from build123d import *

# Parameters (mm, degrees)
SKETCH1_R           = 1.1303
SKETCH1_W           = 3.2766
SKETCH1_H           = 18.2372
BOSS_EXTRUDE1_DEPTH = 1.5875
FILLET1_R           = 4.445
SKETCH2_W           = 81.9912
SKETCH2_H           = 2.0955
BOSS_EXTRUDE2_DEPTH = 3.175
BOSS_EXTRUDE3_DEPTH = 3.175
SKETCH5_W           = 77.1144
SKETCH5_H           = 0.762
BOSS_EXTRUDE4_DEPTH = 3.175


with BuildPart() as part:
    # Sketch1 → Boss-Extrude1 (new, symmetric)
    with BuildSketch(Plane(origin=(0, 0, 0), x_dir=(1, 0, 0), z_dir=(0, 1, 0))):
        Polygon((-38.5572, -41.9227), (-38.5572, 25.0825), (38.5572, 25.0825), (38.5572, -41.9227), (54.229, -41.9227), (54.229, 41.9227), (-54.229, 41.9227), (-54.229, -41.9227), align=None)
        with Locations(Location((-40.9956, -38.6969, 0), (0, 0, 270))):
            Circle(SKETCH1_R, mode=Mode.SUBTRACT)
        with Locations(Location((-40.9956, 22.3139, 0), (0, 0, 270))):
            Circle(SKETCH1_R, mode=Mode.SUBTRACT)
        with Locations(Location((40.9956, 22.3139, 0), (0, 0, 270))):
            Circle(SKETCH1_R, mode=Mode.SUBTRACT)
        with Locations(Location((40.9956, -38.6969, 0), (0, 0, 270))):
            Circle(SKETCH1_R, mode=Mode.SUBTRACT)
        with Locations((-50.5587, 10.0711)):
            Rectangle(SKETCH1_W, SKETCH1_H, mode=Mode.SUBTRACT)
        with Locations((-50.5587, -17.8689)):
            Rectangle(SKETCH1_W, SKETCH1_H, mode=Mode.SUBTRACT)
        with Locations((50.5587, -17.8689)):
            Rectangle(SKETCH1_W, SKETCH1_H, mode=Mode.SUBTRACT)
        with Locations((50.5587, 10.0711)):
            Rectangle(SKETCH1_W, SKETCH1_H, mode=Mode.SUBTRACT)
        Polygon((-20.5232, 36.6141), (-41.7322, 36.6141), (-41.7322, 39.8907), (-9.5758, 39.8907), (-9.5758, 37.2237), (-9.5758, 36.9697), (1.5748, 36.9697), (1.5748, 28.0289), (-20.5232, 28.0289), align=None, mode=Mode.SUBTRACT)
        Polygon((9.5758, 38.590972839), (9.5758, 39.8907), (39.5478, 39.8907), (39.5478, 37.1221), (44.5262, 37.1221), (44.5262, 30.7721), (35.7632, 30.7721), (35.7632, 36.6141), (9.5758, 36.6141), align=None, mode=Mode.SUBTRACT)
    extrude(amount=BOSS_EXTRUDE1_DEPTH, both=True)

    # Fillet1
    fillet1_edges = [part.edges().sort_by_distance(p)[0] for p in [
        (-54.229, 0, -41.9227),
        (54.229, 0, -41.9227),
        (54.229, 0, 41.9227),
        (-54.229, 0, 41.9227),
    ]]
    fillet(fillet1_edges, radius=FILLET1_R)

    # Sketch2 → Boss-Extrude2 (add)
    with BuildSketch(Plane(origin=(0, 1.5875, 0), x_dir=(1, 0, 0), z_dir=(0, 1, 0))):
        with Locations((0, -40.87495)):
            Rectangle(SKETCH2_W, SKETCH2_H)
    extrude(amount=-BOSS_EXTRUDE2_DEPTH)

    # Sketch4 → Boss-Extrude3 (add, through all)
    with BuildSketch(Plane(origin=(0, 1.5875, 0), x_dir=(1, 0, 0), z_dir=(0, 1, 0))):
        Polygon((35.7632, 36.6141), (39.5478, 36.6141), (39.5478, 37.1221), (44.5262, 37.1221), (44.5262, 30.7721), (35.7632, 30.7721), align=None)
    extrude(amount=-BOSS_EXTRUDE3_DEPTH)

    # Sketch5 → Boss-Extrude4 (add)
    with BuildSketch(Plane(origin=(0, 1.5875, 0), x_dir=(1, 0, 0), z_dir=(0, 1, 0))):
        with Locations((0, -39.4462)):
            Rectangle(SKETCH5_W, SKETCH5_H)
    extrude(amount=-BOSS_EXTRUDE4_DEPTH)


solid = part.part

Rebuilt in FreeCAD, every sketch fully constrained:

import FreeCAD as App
import Part
import Sketcher
from FreeCAD import Vector
Q = App.Units.Quantity


def edges_at(feature, points):
    """Names of the edges that pass closest to the given points."""
    edges = feature.Shape.Edges
    near = lambda p: min(range(len(edges)), key=lambda i: edges[i].distToShape(Part.Vertex(*p))[0])
    return sorted({f"Edge{near(p) + 1}" for p in points})

doc = App.newDocument("Part")
body = doc.addObject("PartDesign::Body", "Body")

# Sketch on XZ plane
sketch1 = body.newObject("Sketcher::SketchObject", "Sketch")
sketch1.AttachmentSupport = (doc.getObject("XZ_Plane"), [""])
sketch1.MapMode = "FlatFace"
sketch1.addGeometry(Part.LineSegment(Vector(-38.5572, 41.9227, 0), Vector(-38.5572, -25.0825, 0)), False)
sketch1.addGeometry(Part.LineSegment(Vector(-38.5572, -25.0825, 0), Vector(38.5572, -25.0825, 0)), False)
sketch1.addGeometry(Part.LineSegment(Vector(38.5572, -25.0825, 0), Vector(38.5572, 41.9227, 0)), False)
sketch1.addGeometry(Part.LineSegment(Vector(38.5572, 41.9227, 0), Vector(54.229, 41.9227, 0)), False)
sketch1.addGeometry(Part.LineSegment(Vector(54.229, 41.9227, 0), Vector(54.229, -41.9227, 0)), False)
sketch1.addGeometry(Part.LineSegment(Vector(54.229, -41.9227, 0), Vector(-54.229, -41.9227, 0)), False)
sketch1.addGeometry(Part.LineSegment(Vector(-54.229, -41.9227, 0), Vector(-54.229, 41.9227, 0)), False)
sketch1.addGeometry(Part.LineSegment(Vector(-54.229, 41.9227, 0), Vector(-38.5572, 41.9227, 0)), False)
sketch1.addGeometry(Part.Circle(Vector(-40.9956, 38.6969, 0), Vector(0, 0, 1), 1.1303), False)
sketch1.addGeometry(Part.LineSegment(Vector(-48.9204, 26.9875, 0), Vector(-52.197, 26.9875, 0)), False)
sketch1.addGeometry(Part.LineSegment(Vector(-52.197, 26.9875, 0), Vector(-52.197, 8.7503, 0)), False)
sketch1.addGeometry(Part.LineSegment(Vector(-52.197, 8.7503, 0), Vector(-48.9204, 8.7503, 0)), False)
sketch1.addGeometry(Part.LineSegment(Vector(-48.9204, 8.7503, 0), Vector(-48.9204, 26.9875, 0)), False)
sketch1.addGeometry(Part.Circle(Vector(40.9956, 38.6969, 0), Vector(0, 0, 1), 1.1303), False)
sketch1.addGeometry(Part.LineSegment(Vector(52.197, 26.9875, 0), Vector(48.9204, 26.9875, 0)), False)
sketch1.addGeometry(Part.LineSegment(Vector(48.9204, 26.9875, 0), Vector(48.9204, 8.7503, 0)), False)
sketch1.addGeometry(Part.LineSegment(Vector(48.9204, 8.7503, 0), Vector(52.197, 8.7503, 0)), False)
sketch1.addGeometry(Part.LineSegment(Vector(52.197, 8.7503, 0), Vector(52.197, 26.9875, 0)), False)
sketch1.addGeometry(Part.LineSegment(Vector(-48.9204, -0.9525, 0), Vector(-52.197, -0.9525, 0)), False)
sketch1.addGeometry(Part.LineSegment(Vector(-52.197, -0.9525, 0), Vector(-52.197, -19.1897, 0)), False)
sketch1.addGeometry(Part.LineSegment(Vector(-52.197, -19.1897, 0), Vector(-48.9204, -19.1897, 0)), False)
sketch1.addGeometry(Part.LineSegment(Vector(-48.9204, -19.1897, 0), Vector(-48.9204, -0.9525, 0)), False)
sketch1.addGeometry(Part.Circle(Vector(-40.9956, -22.3139, 0), Vector(0, 0, 1), 1.1303), False)
sketch1.addGeometry(Part.LineSegment(Vector(-20.5232, -28.0289, 0), Vector(-20.5232, -36.6141, 0)), False)
sketch1.addGeometry(Part.LineSegment(Vector(-20.5232, -36.6141, 0), Vector(-41.7322, -36.6141, 0)), False)
sketch1.addGeometry(Part.LineSegment(Vector(-41.7322, -36.6141, 0), Vector(-41.7322, -39.8907, 0)), False)
sketch1.addGeometry(Part.LineSegment(Vector(-41.7322, -39.8907, 0), Vector(-9.5758, -39.8907, 0)), False)
sketch1.addGeometry(Part.LineSegment(Vector(-9.5758, -39.8907, 0), Vector(-9.5758, -36.9697, 0)), False)
sketch1.addGeometry(Part.LineSegment(Vector(-9.5758, -36.9697, 0), Vector(1.5748, -36.9697, 0)), False)
sketch1.addGeometry(Part.LineSegment(Vector(1.5748, -36.9697, 0), Vector(1.5748, -28.0289, 0)), False)
sketch1.addGeometry(Part.LineSegment(Vector(1.5748, -28.0289, 0), Vector(-20.5232, -28.0289, 0)), False)
sketch1.addGeometry(Part.LineSegment(Vector(52.197, -0.9525, 0), Vector(48.9204, -0.9525, 0)), False)
sketch1.addGeometry(Part.LineSegment(Vector(48.9204, -0.9525, 0), Vector(48.9204, -19.1897, 0)), False)
sketch1.addGeometry(Part.LineSegment(Vector(48.9204, -19.1897, 0), Vector(52.197, -19.1897, 0)), False)
sketch1.addGeometry(Part.LineSegment(Vector(52.197, -19.1897, 0), Vector(52.197, -0.9525, 0)), False)
sketch1.addGeometry(Part.Circle(Vector(40.9956, -22.3139, 0), Vector(0, 0, 1), 1.1303), False)
sketch1.addGeometry(Part.LineSegment(Vector(9.5758, -36.6141, 0), Vector(9.5758, -39.8907, 0)), False)
sketch1.addGeometry(Part.LineSegment(Vector(9.5758, -39.8907, 0), Vector(39.5478, -39.8907, 0)), False)
sketch1.addGeometry(Part.LineSegment(Vector(39.5478, -39.8907, 0), Vector(39.5478, -37.1221, 0)), False)
sketch1.addGeometry(Part.LineSegment(Vector(39.5478, -37.1221, 0), Vector(44.5262, -37.1221, 0)), False)
sketch1.addGeometry(Part.LineSegment(Vector(44.5262, -37.1221, 0), Vector(44.5262, -30.7721, 0)), False)
sketch1.addGeometry(Part.LineSegment(Vector(44.5262, -30.7721, 0), Vector(35.7632, -30.7721, 0)), False)
sketch1.addGeometry(Part.LineSegment(Vector(35.7632, -30.7721, 0), Vector(35.7632, -36.6141, 0)), False)
sketch1.addGeometry(Part.LineSegment(Vector(35.7632, -36.6141, 0), Vector(9.5758, -36.6141, 0)), False)
sketch1.addConstraint(Sketcher.Constraint("Coincident", 0, 2, 1, 1))
sketch1.addConstraint(Sketcher.Constraint("Coincident", 1, 2, 2, 1))
sketch1.addConstraint(Sketcher.Constraint("Coincident", 2, 2, 3, 1))
sketch1.addConstraint(Sketcher.Constraint("Coincident", 3, 2, 4, 1))
sketch1.addConstraint(Sketcher.Constraint("Coincident", 4, 2, 5, 1))
sketch1.addConstraint(Sketcher.Constraint("Coincident", 5, 2, 6, 1))
sketch1.addConstraint(Sketcher.Constraint("Coincident", 6, 2, 7, 1))
sketch1.addConstraint(Sketcher.Constraint("Coincident", 7, 2, 0, 1))
sketch1.addConstraint(Sketcher.Constraint("Coincident", 9, 2, 10, 1))
sketch1.addConstraint(Sketcher.Constraint("Coincident", 10, 2, 11, 1))
sketch1.addConstraint(Sketcher.Constraint("Coincident", 11, 2, 12, 1))
sketch1.addConstraint(Sketcher.Constraint("Coincident", 12, 2, 9, 1))
sketch1.addConstraint(Sketcher.Constraint("Coincident", 14, 2, 15, 1))
sketch1.addConstraint(Sketcher.Constraint("Coincident", 15, 2, 16, 1))
sketch1.addConstraint(Sketcher.Constraint("Coincident", 16, 2, 17, 1))
sketch1.addConstraint(Sketcher.Constraint("Coincident", 17, 2, 14, 1))
sketch1.addConstraint(Sketcher.Constraint("Coincident", 18, 2, 19, 1))
sketch1.addConstraint(Sketcher.Constraint("Coincident", 19, 2, 20, 1))
sketch1.addConstraint(Sketcher.Constraint("Coincident", 20, 2, 21, 1))
sketch1.addConstraint(Sketcher.Constraint("Coincident", 21, 2, 18, 1))
sketch1.addConstraint(Sketcher.Constraint("Coincident", 23, 2, 24, 1))
sketch1.addConstraint(Sketcher.Constraint("Coincident", 24, 2, 25, 1))
sketch1.addConstraint(Sketcher.Constraint("Coincident", 25, 2, 26, 1))
sketch1.addConstraint(Sketcher.Constraint("Coincident", 26, 2, 27, 1))
sketch1.addConstraint(Sketcher.Constraint("Coincident", 27, 2, 28, 1))
sketch1.addConstraint(Sketcher.Constraint("Coincident", 28, 2, 29, 1))
sketch1.addConstraint(Sketcher.Constraint("Coincident", 29, 2, 30, 1))
sketch1.addConstraint(Sketcher.Constraint("Coincident", 30, 2, 23, 1))
sketch1.addConstraint(Sketcher.Constraint("Coincident", 31, 2, 32, 1))
sketch1.addConstraint(Sketcher.Constraint("Coincident", 32, 2, 33, 1))
sketch1.addConstraint(Sketcher.Constraint("Coincident", 33, 2, 34, 1))
sketch1.addConstraint(Sketcher.Constraint("Coincident", 34, 2, 31, 1))
sketch1.addConstraint(Sketcher.Constraint("Coincident", 36, 2, 37, 1))
sketch1.addConstraint(Sketcher.Constraint("Coincident", 37, 2, 38, 1))
sketch1.addConstraint(Sketcher.Constraint("Coincident", 38, 2, 39, 1))
sketch1.addConstraint(Sketcher.Constraint("Coincident", 39, 2, 40, 1))
sketch1.addConstraint(Sketcher.Constraint("Coincident", 40, 2, 41, 1))
sketch1.addConstraint(Sketcher.Constraint("Coincident", 41, 2, 42, 1))
sketch1.addConstraint(Sketcher.Constraint("Coincident", 42, 2, 43, 1))
sketch1.addConstraint(Sketcher.Constraint("Coincident", 43, 2, 36, 1))
sketch1.addConstraint(Sketcher.Constraint("Vertical", 0))
sketch1.addConstraint(Sketcher.Constraint("Horizontal", 1))
sketch1.addConstraint(Sketcher.Constraint("Vertical", 2))
sketch1.addConstraint(Sketcher.Constraint("Horizontal", 3))
sketch1.addConstraint(Sketcher.Constraint("Vertical", 4))
sketch1.addConstraint(Sketcher.Constraint("Horizontal", 5))
sketch1.addConstraint(Sketcher.Constraint("Vertical", 6))
sketch1.addConstraint(Sketcher.Constraint("Horizontal", 7))
sketch1.addConstraint(Sketcher.Constraint("Horizontal", 9))
sketch1.addConstraint(Sketcher.Constraint("Vertical", 10))
sketch1.addConstraint(Sketcher.Constraint("Horizontal", 11))
sketch1.addConstraint(Sketcher.Constraint("Vertical", 12))
sketch1.addConstraint(Sketcher.Constraint("Horizontal", 14))
sketch1.addConstraint(Sketcher.Constraint("Vertical", 15))
sketch1.addConstraint(Sketcher.Constraint("Horizontal", 16))
sketch1.addConstraint(Sketcher.Constraint("Vertical", 17))
sketch1.addConstraint(Sketcher.Constraint("Horizontal", 18))
sketch1.addConstraint(Sketcher.Constraint("Vertical", 19))
sketch1.addConstraint(Sketcher.Constraint("Horizontal", 20))
sketch1.addConstraint(Sketcher.Constraint("Vertical", 21))
sketch1.addConstraint(Sketcher.Constraint("Vertical", 23))
sketch1.addConstraint(Sketcher.Constraint("Horizontal", 24))
sketch1.addConstraint(Sketcher.Constraint("Vertical", 25))
sketch1.addConstraint(Sketcher.Constraint("Horizontal", 26))
sketch1.addConstraint(Sketcher.Constraint("Vertical", 27))
sketch1.addConstraint(Sketcher.Constraint("Horizontal", 28))
sketch1.addConstraint(Sketcher.Constraint("Vertical", 29))
sketch1.addConstraint(Sketcher.Constraint("Horizontal", 30))
sketch1.addConstraint(Sketcher.Constraint("Horizontal", 31))
sketch1.addConstraint(Sketcher.Constraint("Vertical", 32))
sketch1.addConstraint(Sketcher.Constraint("Horizontal", 33))
sketch1.addConstraint(Sketcher.Constraint("Vertical", 34))
sketch1.addConstraint(Sketcher.Constraint("Vertical", 36))
sketch1.addConstraint(Sketcher.Constraint("Horizontal", 37))
sketch1.addConstraint(Sketcher.Constraint("Vertical", 38))
sketch1.addConstraint(Sketcher.Constraint("Horizontal", 39))
sketch1.addConstraint(Sketcher.Constraint("Vertical", 40))
sketch1.addConstraint(Sketcher.Constraint("Horizontal", 41))
sketch1.addConstraint(Sketcher.Constraint("Vertical", 42))
sketch1.addConstraint(Sketcher.Constraint("Horizontal", 43))
sketch1.addConstraint(Sketcher.Constraint("Equal", 8, 13))
sketch1.addConstraint(Sketcher.Constraint("Equal", 13, 22))
sketch1.addConstraint(Sketcher.Constraint("Equal", 22, 35))
sketch1.addConstraint(Sketcher.Constraint("Symmetric", 3, 2, 5, 2, -1, 1))
sketch1.addConstraint(Sketcher.Constraint("Symmetric", 8, 3, 13, 3, -2))
sketch1.addConstraint(Sketcher.Constraint("Symmetric", 22, 3, 35, 3, -2))
sketch1.addConstraint(Sketcher.Constraint("Symmetric", 2, 2, 7, 2, -2))
sketch1.addConstraint(Sketcher.Constraint("Symmetric", 12, 2, 14, 2, -2))
sketch1.addConstraint(Sketcher.Constraint("Symmetric", 10, 2, 16, 2, -2))
sketch1.addConstraint(Sketcher.Constraint("Symmetric", 21, 2, 31, 2, -2))
sketch1.addConstraint(Sketcher.Constraint("Symmetric", 19, 2, 33, 2, -2))
sketch1.addConstraint(Sketcher.Constraint("Symmetric", 26, 2, 36, 2, -2))
sketch1.addConstraint(Sketcher.Constraint("Horizontal", 24, 2, 42, 2))
sketch1.addConstraint(Sketcher.Constraint("Vertical", 8, 3, 22, 3))
sketch1.addConstraint(Sketcher.Constraint("Vertical", 10, 2, 18, 2))
sketch1.addConstraint(Sketcher.Constraint("Vertical", 12, 2, 20, 2))
sketch1.addConstraint(Sketcher.Constraint("Equal", 17, 19))
sketch1.addConstraint(Sketcher.Constraint("Equal", 33, 25))
sketch1.addConstraint(Sketcher.Constraint("Diameter", 8, Q("0.089 in")))
sketch1.addConstraint(Sketcher.Constraint("DistanceX", 5, 2, 5, 1, Q("4.27 in")))
sketch1.addConstraint(Sketcher.Constraint("DistanceX", 30, 2, 30, 1, Q("0.87 in")))
sketch1.addConstraint(Sketcher.Constraint("DistanceX", 37, 1, 37, 2, Q("1.18 in")))
sketch1.addConstraint(Sketcher.Constraint("DistanceY", 40, 1, 40, 2, Q("0.25 in")))
sketch1.addConstraint(Sketcher.Constraint("DistanceY", 42, 2, 42, 1, Q("0.23 in")))
sketch1.addConstraint(Sketcher.Constraint("DistanceY", 18, 2, 9, 2, Q("1.1 in")))
sketch1.addConstraint(Sketcher.Constraint("DistanceX", 1, 1, 1, 2, Q("3.036 in")))
sketch1.addConstraint(Sketcher.Constraint("DistanceX", 9, 2, 9, 1, Q("0.129 in")))
sketch1.addConstraint(Sketcher.Constraint("DistanceX", 24, 2, 24, 1, Q("0.835 in")))
sketch1.addConstraint(Sketcher.Constraint("DistanceX", 26, 1, 26, 2, Q("1.266 in")))
sketch1.addConstraint(Sketcher.Constraint("DistanceX", 39, 1, 39, 2, Q("0.196 in")))
sketch1.addConstraint(Sketcher.Constraint("DistanceX", 41, 2, 41, 1, Q("0.345 in")))
sketch1.addConstraint(Sketcher.Constraint("DistanceY", 0, 2, 0, 1, Q("2.638 in")))
sketch1.addConstraint(Sketcher.Constraint("DistanceY", 4, 2, 4, 1, Q("3.301 in")))
sketch1.addConstraint(Sketcher.Constraint("DistanceY", 10, 2, 10, 1, Q("0.718 in")))
sketch1.addConstraint(Sketcher.Constraint("DistanceY", 23, 2, 23, 1, Q("0.338 in")))
sketch1.addConstraint(Sketcher.Constraint("DistanceY", 27, 1, 27, 2, Q("0.115 in")))
sketch1.addConstraint(Sketcher.Constraint("DistanceX", 6, 2, 9, 2, Q("0.08 in")))
sketch1.addConstraint(Sketcher.Constraint("DistanceY", 0, 2, 9, 2, Q("2.05 in")))
sketch1.addConstraint(Sketcher.Constraint("DistanceX", 0, 2, 23, 2, Q("0.71 in")))
sketch1.addConstraint(Sketcher.Constraint("DistanceY", 5, 2, 25, 2, Q("0.08 in")))
sketch1.addConstraint(Sketcher.Constraint("DistanceX", 8, 3, -1, 1, Q("1.614 in")))
sketch1.addConstraint(Sketcher.Constraint("DistanceY", 22, 3, 8, 3, Q("2.402 in")))
sketch1.addConstraint(Sketcher.Constraint("DistanceY", 0, 2, 22, 3, Q("0.109 in")))
pad1 = body.newObject("PartDesign::Pad", "Pad")
pad1.Profile = sketch1
pad1.Length = Q("0.125 in")
pad1.Midplane = True
doc.recompute()

fillet = body.newObject("PartDesign::Fillet", "Fillet")
fillet.Base = (pad1, edges_at(pad1, [
    (-54.229, 0, -41.923),
    (54.229, 0, -41.923),
    (54.229, 0, 41.923),
    (-54.229, 0, 41.923),
]))
fillet.Radius = Q("0.175 in")

# Sketch on XZ plane
sketch2 = body.newObject("Sketcher::SketchObject", "Sketch001")
sketch2.AttachmentSupport = (doc.getObject("XZ_Plane"), [""])
sketch2.MapMode = "FlatFace"
sketch2.AttachmentOffset = App.Placement(Vector(0, 0, -0.0625 * 25.4), App.Rotation())
sketch2.addGeometry(Part.LineSegment(Vector(-40.9956, 39.8272, 0), Vector(-40.9956, 41.9227, 0)), False)
sketch2.addGeometry(Part.LineSegment(Vector(-40.9956, 41.9227, 0), Vector(40.9956, 41.9227, 0)), False)
sketch2.addGeometry(Part.LineSegment(Vector(40.9956, 41.9227, 0), Vector(40.9956, 39.8272, 0)), False)
sketch2.addGeometry(Part.LineSegment(Vector(40.9956, 39.8272, 0), Vector(-40.9956, 39.8272, 0)), False)
sketch2.addConstraint(Sketcher.Constraint("Coincident", 0, 2, 1, 1))
sketch2.addConstraint(Sketcher.Constraint("Coincident", 1, 2, 2, 1))
sketch2.addConstraint(Sketcher.Constraint("Coincident", 2, 2, 3, 1))
sketch2.addConstraint(Sketcher.Constraint("Coincident", 3, 2, 0, 1))
sketch2.addConstraint(Sketcher.Constraint("Vertical", 0))
sketch2.addConstraint(Sketcher.Constraint("Horizontal", 1))
sketch2.addConstraint(Sketcher.Constraint("Vertical", 2))
sketch2.addConstraint(Sketcher.Constraint("Horizontal", 3))
sketch2.addConstraint(Sketcher.Constraint("DistanceX", 1, 1, 1, 2, Q("3.228 in")))
sketch2.addConstraint(Sketcher.Constraint("DistanceY", 0, 1, 0, 2, Q("0.0825 in")))
sketch2.addConstraint(Sketcher.Constraint("DistanceX", 0, 2, -1, 1, Q("1.614 in")))
sketch2.addConstraint(Sketcher.Constraint("DistanceY", -1, 1, 2, 2, Q("1.568 in")))
pad2 = body.newObject("PartDesign::Pad", "Pad001")
pad2.Profile = sketch2
pad2.Length = Q("0.125 in")

# Sketch on XZ plane
sketch3 = body.newObject("Sketcher::SketchObject", "Sketch002")
sketch3.AttachmentSupport = (doc.getObject("XZ_Plane"), [""])
sketch3.MapMode = "FlatFace"
sketch3.AttachmentOffset = App.Placement(Vector(0, 0, -0.0625 * 25.4), App.Rotation())
sketch3.addGeometry(Part.LineSegment(Vector(39.5478, -36.6141, 0), Vector(35.7632, -36.6141, 0)), False)
sketch3.addGeometry(Part.LineSegment(Vector(35.7632, -36.6141, 0), Vector(35.7632, -30.7721, 0)), False)
sketch3.addGeometry(Part.LineSegment(Vector(35.7632, -30.7721, 0), Vector(44.5262, -30.7721, 0)), False)
sketch3.addGeometry(Part.LineSegment(Vector(44.5262, -30.7721, 0), Vector(44.5262, -37.1221, 0)), False)
sketch3.addGeometry(Part.LineSegment(Vector(44.5262, -37.1221, 0), Vector(39.5478, -37.1221, 0)), False)
sketch3.addGeometry(Part.LineSegment(Vector(39.5478, -37.1221, 0), Vector(39.5478, -36.6141, 0)), False)
sketch3.addConstraint(Sketcher.Constraint("Coincident", 0, 2, 1, 1))
sketch3.addConstraint(Sketcher.Constraint("Coincident", 1, 2, 2, 1))
sketch3.addConstraint(Sketcher.Constraint("Coincident", 2, 2, 3, 1))
sketch3.addConstraint(Sketcher.Constraint("Coincident", 3, 2, 4, 1))
sketch3.addConstraint(Sketcher.Constraint("Coincident", 4, 2, 5, 1))
sketch3.addConstraint(Sketcher.Constraint("Coincident", 5, 2, 0, 1))
sketch3.addConstraint(Sketcher.Constraint("Horizontal", 0))
sketch3.addConstraint(Sketcher.Constraint("Vertical", 1))
sketch3.addConstraint(Sketcher.Constraint("Horizontal", 2))
sketch3.addConstraint(Sketcher.Constraint("Vertical", 3))
sketch3.addConstraint(Sketcher.Constraint("Horizontal", 4))
sketch3.addConstraint(Sketcher.Constraint("Vertical", 5))
sketch3.addConstraint(Sketcher.Constraint("DistanceY", 1, 1, 1, 2, Q("0.23 in")))
sketch3.addConstraint(Sketcher.Constraint("DistanceY", 3, 2, 3, 1, Q("0.25 in")))
sketch3.addConstraint(Sketcher.Constraint("DistanceX", 0, 2, 0, 1, Q("0.149 in")))
sketch3.addConstraint(Sketcher.Constraint("DistanceX", 2, 1, 2, 2, Q("0.345 in")))
sketch3.addConstraint(Sketcher.Constraint("DistanceX", -1, 1, 0, 2, Q("1.408 in")))
sketch3.addConstraint(Sketcher.Constraint("DistanceY", 0, 2, -1, 1, Q("1.4415 in")))
pad3 = body.newObject("PartDesign::Pad", "Pad002")
pad3.Profile = sketch3
pad3.Length = Q("0.125 in")

# Sketch on XZ plane
sketch4 = body.newObject("Sketcher::SketchObject", "Sketch003")
sketch4.AttachmentSupport = (doc.getObject("XZ_Plane"), [""])
sketch4.MapMode = "FlatFace"
sketch4.AttachmentOffset = App.Placement(Vector(0, 0, -0.0625 * 25.4), App.Rotation())
sketch4.addGeometry(Part.LineSegment(Vector(-38.5572, 39.0652, 0), Vector(-38.5572, 39.8272, 0)), False)
sketch4.addGeometry(Part.LineSegment(Vector(-38.5572, 39.8272, 0), Vector(38.5572, 39.8272, 0)), False)
sketch4.addGeometry(Part.LineSegment(Vector(38.5572, 39.8272, 0), Vector(38.5572, 39.0652, 0)), False)
sketch4.addGeometry(Part.LineSegment(Vector(38.5572, 39.0652, 0), Vector(-38.5572, 39.0652, 0)), False)
sketch4.addConstraint(Sketcher.Constraint("Coincident", 0, 2, 1, 1))
sketch4.addConstraint(Sketcher.Constraint("Coincident", 1, 2, 2, 1))
sketch4.addConstraint(Sketcher.Constraint("Coincident", 2, 2, 3, 1))
sketch4.addConstraint(Sketcher.Constraint("Coincident", 3, 2, 0, 1))
sketch4.addConstraint(Sketcher.Constraint("Vertical", 0))
sketch4.addConstraint(Sketcher.Constraint("Horizontal", 1))
sketch4.addConstraint(Sketcher.Constraint("Vertical", 2))
sketch4.addConstraint(Sketcher.Constraint("Horizontal", 3))
sketch4.addConstraint(Sketcher.Constraint("DistanceY", 0, 1, 0, 2, Q("0.03 in")))
sketch4.addConstraint(Sketcher.Constraint("DistanceX", 1, 1, 1, 2, Q("3.036 in")))
sketch4.addConstraint(Sketcher.Constraint("DistanceX", 0, 2, -1, 1, Q("1.518 in")))
sketch4.addConstraint(Sketcher.Constraint("DistanceY", -1, 1, 0, 2, Q("1.568 in")))
pad4 = body.newObject("PartDesign::Pad", "Pad003")
pad4.Profile = sketch4
pad4.Length = Q("0.125 in")

doc.recompute()
